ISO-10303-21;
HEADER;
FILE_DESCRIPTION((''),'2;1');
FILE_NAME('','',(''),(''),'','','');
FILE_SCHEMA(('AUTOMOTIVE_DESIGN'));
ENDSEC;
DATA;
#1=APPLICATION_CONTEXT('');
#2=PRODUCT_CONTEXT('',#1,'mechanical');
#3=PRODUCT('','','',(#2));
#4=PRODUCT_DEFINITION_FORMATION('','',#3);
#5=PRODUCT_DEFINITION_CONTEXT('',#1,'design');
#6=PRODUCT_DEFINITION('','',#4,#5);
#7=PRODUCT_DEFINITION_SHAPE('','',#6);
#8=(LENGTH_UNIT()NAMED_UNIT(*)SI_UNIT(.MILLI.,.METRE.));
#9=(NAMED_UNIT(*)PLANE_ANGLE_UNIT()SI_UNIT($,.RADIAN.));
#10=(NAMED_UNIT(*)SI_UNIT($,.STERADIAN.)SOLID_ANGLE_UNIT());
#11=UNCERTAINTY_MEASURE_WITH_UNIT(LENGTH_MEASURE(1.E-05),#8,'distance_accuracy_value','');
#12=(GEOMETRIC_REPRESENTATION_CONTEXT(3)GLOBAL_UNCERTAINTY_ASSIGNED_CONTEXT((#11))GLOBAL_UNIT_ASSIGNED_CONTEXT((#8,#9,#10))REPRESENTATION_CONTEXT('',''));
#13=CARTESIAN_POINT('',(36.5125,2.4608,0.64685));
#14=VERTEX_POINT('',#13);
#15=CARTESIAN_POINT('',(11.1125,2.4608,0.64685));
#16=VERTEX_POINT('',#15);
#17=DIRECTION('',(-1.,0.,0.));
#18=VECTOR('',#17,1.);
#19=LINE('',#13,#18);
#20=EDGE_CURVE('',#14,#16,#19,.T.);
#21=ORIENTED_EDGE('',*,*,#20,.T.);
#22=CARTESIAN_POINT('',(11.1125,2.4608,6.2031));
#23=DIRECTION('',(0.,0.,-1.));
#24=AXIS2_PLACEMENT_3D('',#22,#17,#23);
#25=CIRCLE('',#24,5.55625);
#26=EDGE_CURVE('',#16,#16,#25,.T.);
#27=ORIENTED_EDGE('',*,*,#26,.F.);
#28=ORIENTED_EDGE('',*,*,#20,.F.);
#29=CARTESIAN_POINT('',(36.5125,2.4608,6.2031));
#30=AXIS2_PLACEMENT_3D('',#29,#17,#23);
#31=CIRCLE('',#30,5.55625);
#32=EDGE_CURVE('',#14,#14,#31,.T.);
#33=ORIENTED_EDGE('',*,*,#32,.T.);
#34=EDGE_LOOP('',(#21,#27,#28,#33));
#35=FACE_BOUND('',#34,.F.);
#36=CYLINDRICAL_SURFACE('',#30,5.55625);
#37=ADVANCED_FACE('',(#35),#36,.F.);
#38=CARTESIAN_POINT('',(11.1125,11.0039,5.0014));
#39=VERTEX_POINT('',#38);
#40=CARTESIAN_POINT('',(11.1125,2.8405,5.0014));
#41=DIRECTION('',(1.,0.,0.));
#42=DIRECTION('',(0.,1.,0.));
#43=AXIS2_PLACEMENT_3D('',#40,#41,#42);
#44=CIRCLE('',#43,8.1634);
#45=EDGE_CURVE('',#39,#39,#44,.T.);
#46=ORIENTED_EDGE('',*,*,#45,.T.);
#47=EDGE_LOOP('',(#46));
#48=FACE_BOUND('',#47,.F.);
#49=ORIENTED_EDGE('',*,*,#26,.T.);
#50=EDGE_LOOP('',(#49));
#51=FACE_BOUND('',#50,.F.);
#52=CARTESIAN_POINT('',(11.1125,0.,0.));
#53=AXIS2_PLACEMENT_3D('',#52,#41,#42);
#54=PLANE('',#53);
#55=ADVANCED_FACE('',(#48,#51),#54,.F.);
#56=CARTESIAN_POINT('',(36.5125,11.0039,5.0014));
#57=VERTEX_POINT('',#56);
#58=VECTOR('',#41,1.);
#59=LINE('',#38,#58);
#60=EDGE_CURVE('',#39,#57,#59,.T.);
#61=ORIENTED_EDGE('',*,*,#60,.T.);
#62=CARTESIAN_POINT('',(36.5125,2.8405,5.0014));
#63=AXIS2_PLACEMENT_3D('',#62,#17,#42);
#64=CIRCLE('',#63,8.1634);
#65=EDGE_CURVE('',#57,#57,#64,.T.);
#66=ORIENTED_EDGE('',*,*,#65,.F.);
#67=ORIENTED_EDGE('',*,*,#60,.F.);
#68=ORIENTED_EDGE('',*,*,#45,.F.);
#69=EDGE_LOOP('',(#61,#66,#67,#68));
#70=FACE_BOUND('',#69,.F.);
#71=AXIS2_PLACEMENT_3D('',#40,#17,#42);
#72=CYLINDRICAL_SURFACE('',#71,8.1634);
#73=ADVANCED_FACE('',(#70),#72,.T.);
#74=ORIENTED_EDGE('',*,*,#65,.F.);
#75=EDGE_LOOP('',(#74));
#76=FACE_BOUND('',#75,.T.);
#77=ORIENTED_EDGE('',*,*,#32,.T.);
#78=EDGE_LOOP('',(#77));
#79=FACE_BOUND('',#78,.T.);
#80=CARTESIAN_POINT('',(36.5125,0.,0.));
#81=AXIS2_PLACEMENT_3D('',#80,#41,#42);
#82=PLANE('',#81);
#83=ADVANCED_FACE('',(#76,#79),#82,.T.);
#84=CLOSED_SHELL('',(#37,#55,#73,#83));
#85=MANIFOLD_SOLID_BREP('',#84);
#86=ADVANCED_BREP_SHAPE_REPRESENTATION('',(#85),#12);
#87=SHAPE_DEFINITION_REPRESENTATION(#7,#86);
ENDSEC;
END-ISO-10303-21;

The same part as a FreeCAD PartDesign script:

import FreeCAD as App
import Part
import Sketcher

V = App.Vector
Q = App.Units.Quantity

doc = App.newDocument("Part")
body = doc.addObject("PartDesign::Body", "Body")

sketch1 = body.newObject("Sketcher::SketchObject", "Sketch")
sketch1.AttachmentSupport = (doc.getObject("YZ_Plane"), [""])
sketch1.MapMode = "FlatFace"
sketch1.AttachmentOffset = App.Placement(V(0, 0, 0.4375 * 25.4), App.Rotation())
sketch1.addGeometry(Part.Circle(V(3, 5, 0), V(0, 0, 1), 8), False)
sketch1.addConstraint([
    Sketcher.Constraint("Diameter", 0, 16.3268),
    Sketcher.Constraint("DistanceY", -1, 1, 0, 3, Q("0.1969 in")),
    Sketcher.Constraint("DistanceX", -1, 1, 0, 3, 2.8405),
])
pad1 = body.newObject("PartDesign::Pad", "Pad")
pad1.Profile = sketch1
pad1.Length = Q("1 in")

sketch2 = body.newObject("Sketcher::SketchObject", "Sketch001")
sketch2.AttachmentSupport = (doc.getObject("YZ_Plane"), [""])
sketch2.MapMode = "FlatFace"
sketch2.AttachmentOffset = App.Placement(V(0, 0, 1.4375 * 25.4), App.Rotation())
sketch2.addGeometry(Part.Circle(V(2, 6, 0), V(0, 0, 1), 6), False)
sketch2.addConstraint([
    Sketcher.Constraint("Diameter", 0, Q("0.4375 in")),
    Sketcher.Constraint("DistanceX", -1, 1, 0, 3, 2.4608),
    Sketcher.Constraint("DistanceY", -1, 1, 0, 3, 6.203),
])
doc.recompute()
hole = body.newObject("PartDesign::Hole", "Hole")
hole.Profile = sketch2
hole.ThreadType = "None"
hole.Diameter = Q("0.4375 in")
hole.DepthType = "ThroughAll"

doc.recompute()
